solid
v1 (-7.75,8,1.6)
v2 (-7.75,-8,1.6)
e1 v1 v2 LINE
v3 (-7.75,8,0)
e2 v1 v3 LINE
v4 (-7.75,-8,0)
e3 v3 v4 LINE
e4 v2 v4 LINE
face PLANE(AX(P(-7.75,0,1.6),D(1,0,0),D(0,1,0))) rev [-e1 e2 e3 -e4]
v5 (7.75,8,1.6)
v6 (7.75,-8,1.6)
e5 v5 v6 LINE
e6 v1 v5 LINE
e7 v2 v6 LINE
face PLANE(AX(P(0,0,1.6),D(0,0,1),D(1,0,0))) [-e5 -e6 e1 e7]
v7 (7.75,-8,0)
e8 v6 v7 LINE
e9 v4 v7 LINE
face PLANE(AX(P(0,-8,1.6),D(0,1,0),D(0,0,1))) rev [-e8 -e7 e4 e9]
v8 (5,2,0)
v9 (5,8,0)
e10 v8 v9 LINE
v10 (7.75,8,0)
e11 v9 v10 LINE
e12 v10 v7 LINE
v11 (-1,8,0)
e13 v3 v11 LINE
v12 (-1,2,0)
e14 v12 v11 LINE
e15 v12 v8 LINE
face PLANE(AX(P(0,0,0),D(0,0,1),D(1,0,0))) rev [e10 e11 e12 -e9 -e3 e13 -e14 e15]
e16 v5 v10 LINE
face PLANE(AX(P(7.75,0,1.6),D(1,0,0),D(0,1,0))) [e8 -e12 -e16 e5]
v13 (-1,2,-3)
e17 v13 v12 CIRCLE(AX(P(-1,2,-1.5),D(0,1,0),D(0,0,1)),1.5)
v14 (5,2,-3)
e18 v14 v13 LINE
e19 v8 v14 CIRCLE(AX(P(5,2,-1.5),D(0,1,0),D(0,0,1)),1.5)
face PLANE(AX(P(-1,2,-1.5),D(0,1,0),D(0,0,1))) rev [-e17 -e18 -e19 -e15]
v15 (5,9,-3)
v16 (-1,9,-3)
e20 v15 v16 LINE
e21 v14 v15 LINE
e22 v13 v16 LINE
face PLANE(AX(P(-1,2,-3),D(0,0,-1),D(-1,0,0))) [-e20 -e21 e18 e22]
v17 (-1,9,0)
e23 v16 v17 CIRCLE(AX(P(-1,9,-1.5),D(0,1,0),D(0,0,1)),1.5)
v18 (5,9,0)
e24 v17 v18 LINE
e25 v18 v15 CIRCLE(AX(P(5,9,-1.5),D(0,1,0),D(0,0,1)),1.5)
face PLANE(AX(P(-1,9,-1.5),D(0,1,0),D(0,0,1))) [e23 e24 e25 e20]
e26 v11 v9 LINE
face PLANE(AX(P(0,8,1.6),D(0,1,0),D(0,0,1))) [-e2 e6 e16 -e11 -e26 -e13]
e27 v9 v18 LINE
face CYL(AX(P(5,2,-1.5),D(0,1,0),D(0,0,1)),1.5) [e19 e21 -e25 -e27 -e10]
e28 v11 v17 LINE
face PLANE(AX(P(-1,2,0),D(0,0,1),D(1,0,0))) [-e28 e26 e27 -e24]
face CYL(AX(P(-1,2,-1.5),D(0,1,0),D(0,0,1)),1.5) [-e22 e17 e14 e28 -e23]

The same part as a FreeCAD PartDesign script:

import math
import FreeCAD as App
import Part
import Sketcher

doc = App.newDocument("Part")
body = doc.addObject("PartDesign::Body", "Body")

# Sketch on XY plane
sketch1 = body.newObject("Sketcher::SketchObject", "Sketch")
sketch1.AttachmentSupport = (doc.getObject("XY_Plane"), [""])
sketch1.MapMode = "FlatFace"
sketch1.addGeometry(Part.LineSegment(App.Vector(-7.75, 8, 0), App.Vector(-7.75, -8, 0)), False)
sketch1.addGeometry(Part.LineSegment(App.Vector(-7.75, -8, 0), App.Vector(7.75, -8, 0)), False)
sketch1.addGeometry(Part.LineSegment(App.Vector(7.75, -8, 0), App.Vector(7.75, 8, 0)), False)
sketch1.addGeometry(Part.LineSegment(App.Vector(7.75, 8, 0), App.Vector(-7.75, 8, 0)), False)
sketch1.addConstraint(Sketcher.Constraint("Coincident", 0, 2, 1, 1))
sketch1.addConstraint(Sketcher.Constraint("Coincident", 1, 2, 2, 1))
sketch1.addConstraint(Sketcher.Constraint("Coincident", 2, 2, 3, 1))
sketch1.addConstraint(Sketcher.Constraint("Coincident", 3, 2, 0, 1))
sketch1.addConstraint(Sketcher.Constraint("Vertical", 0))
sketch1.addConstraint(Sketcher.Constraint("Horizontal", 1))
sketch1.addConstraint(Sketcher.Constraint("Vertical", 2))
sketch1.addConstraint(Sketcher.Constraint("Horizontal", 3))
sketch1.addConstraint(Sketcher.Constraint("Symmetric", 0, 2, 2, 2, -1, 1))
sketch1.addConstraint(Sketcher.Constraint("DistanceY", 0, 2, 0, 1, 16.0))
sketch1.addConstraint(Sketcher.Constraint("DistanceX", 1, 1, 1, 2, 15.5))
pad1 = body.newObject("PartDesign::Pad", "Pad")
pad1.Profile = sketch1
pad1.Length = 1.6

# Sketch on XZ plane
sketch2 = body.newObject("Sketcher::SketchObject", "Sketch001")
sketch2.AttachmentSupport = (doc.getObject("XZ_Plane"), [""])
sketch2.MapMode = "FlatFace"
sketch2.AttachmentOffset = App.Placement(App.Vector(0, 0, -8), App.Rotation())
sketch2.addGeometry(Part.LineSegment(App.Vector(5, -3, 0), App.Vector(-1, -3, 0)), False)
sketch2.addGeometry(Part.ArcOfCircle(Part.Circle(App.Vector(-1, -1.5, 0), App.Vector(0, 0, 1), 1.5), math.radians(90), math.radians(270)), False)
sketch2.addGeometry(Part.LineSegment(App.Vector(-1, 0, 0), App.Vector(5, 0, 0)), False)
sketch2.addGeometry(Part.ArcOfCircle(Part.Circle(App.Vector(5, -1.5, 0), App.Vector(0, 0, 1), 1.5), math.radians(-90), math.radians(90)), False)
sketch2.addConstraint(Sketcher.Constraint("Tangent", 0, 2, 1, 2))
sketch2.addConstraint(Sketcher.Constraint("Tangent", 1, 1, 2, 1))
sketch2.addConstraint(Sketcher.Constraint("Tangent", 2, 2, 3, 2))
sketch2.addConstraint(Sketcher.Constraint("Tangent", 3, 1, 0, 1))
sketch2.addConstraint(Sketcher.Constraint("Horizontal", 0))
sketch2.addConstraint(Sketcher.Constraint("Horizontal", 2))
sketch2.addConstraint(Sketcher.Constraint("PointOnObject", 1, 1, -1))
sketch2.addConstraint(Sketcher.Constraint("Radius", 1, 1.5))
sketch2.addConstraint(Sketcher.Constraint("DistanceX", 0, 2, 0, 1, 6.0))
sketch2.addConstraint(Sketcher.Constraint("DistanceX", 1, 3, -1, 1, 1.0))
pad2 = body.newObject("PartDesign::Pad", "Pad001")
pad2.Profile = sketch2
pad2.Type = "TwoLengths"
pad2.Length = 1
pad2.Length2 = 6
pad2.Reversed = True

doc.recompute()
